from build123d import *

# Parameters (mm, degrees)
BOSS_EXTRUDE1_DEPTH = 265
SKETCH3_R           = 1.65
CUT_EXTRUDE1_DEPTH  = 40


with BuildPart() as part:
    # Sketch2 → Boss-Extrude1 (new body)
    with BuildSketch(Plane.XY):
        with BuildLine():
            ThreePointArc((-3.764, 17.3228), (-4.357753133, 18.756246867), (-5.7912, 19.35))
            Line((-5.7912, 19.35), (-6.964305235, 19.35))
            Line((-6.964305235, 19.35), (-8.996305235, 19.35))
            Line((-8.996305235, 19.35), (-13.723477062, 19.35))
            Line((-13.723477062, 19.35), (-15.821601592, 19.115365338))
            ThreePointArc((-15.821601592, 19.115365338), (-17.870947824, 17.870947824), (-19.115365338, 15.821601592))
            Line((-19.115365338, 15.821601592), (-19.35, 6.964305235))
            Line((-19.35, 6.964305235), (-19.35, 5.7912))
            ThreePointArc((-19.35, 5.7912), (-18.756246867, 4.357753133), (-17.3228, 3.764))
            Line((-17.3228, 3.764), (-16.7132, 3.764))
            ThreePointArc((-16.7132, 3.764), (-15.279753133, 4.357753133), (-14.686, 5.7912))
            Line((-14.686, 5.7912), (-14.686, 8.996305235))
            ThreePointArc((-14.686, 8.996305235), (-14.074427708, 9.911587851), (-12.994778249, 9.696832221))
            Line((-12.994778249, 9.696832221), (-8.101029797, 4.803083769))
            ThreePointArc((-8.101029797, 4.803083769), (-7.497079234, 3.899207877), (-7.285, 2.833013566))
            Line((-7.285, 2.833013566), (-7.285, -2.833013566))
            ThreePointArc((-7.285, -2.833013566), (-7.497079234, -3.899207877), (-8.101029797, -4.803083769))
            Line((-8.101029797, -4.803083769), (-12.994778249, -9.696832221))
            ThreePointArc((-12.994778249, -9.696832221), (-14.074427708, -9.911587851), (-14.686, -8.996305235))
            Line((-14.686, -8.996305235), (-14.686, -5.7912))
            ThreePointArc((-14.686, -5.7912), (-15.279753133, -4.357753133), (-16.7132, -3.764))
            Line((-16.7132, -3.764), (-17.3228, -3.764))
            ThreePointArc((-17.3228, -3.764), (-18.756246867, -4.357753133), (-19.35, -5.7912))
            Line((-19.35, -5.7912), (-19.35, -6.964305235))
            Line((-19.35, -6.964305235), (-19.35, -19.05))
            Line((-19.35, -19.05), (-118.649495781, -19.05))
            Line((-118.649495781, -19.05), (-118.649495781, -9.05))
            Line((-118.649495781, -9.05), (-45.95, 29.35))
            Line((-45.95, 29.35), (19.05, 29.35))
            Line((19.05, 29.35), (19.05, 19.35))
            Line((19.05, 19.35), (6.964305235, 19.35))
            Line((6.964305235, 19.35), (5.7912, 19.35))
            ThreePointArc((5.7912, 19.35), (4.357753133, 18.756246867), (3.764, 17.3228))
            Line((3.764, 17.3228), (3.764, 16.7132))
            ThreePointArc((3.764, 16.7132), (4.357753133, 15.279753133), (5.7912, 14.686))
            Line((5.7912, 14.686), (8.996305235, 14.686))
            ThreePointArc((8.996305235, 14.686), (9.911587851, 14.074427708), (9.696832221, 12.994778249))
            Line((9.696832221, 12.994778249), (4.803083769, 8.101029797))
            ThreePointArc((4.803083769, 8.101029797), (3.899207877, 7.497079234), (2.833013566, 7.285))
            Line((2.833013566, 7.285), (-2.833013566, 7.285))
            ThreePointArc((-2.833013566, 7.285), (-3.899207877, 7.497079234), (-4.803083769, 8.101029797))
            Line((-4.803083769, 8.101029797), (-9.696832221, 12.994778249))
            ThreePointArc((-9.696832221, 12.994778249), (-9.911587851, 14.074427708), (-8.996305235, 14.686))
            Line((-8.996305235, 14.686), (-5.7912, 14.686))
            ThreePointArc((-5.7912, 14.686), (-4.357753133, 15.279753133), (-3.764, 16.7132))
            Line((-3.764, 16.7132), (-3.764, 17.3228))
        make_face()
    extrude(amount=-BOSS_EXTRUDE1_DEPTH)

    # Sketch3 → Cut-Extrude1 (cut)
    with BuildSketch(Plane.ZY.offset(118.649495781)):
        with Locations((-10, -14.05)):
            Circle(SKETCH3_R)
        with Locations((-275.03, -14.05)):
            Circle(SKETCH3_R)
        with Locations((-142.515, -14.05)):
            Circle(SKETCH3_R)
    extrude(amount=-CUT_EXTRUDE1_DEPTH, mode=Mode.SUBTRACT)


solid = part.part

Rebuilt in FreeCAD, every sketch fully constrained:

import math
import FreeCAD as App
import Part
import Sketcher

V = App.Vector
Q = App.Units.Quantity

doc = App.newDocument("Part")
body = doc.addObject("PartDesign::Body", "Body")

# Sketch on XY plane
sketch1 = body.newObject("Sketcher::SketchObject", "Sketch")
sketch1.AttachmentSupport = (doc.getObject("XY_Plane"), [""])
sketch1.MapMode = "FlatFace"
sketch1.addGeometry(Part.ArcOfCircle(Part.Circle(V(-5.8, 17.3, 0), V(0, 0, 1), 2), math.radians(0), math.radians(90)), False)
sketch1.addGeometry(Part.LineSegment(V(-3.8, 17.3, 0), V(-3.8, 16.7, 0)), False)
sketch1.addGeometry(Part.ArcOfCircle(Part.Circle(V(-5.8, 16.7, 0), V(0, 0, 1), 2), math.radians(-90), math.radians(0)), False)
sketch1.addGeometry(Part.LineSegment(V(-5.8, 14.7, 0), V(-9, 14.7, 0)), False)
sketch1.addGeometry(Part.ArcOfCircle(Part.Circle(V(-9, 13.7, 0), V(0, 0, 1), 1), math.radians(90), math.radians(225)), False)
sketch1.addGeometry(Part.LineSegment(V(-9.7, 13, 0), V(-4.8, 8.1, 0)), False)
sketch1.addGeometry(Part.ArcOfCircle(Part.Circle(V(-2.8, 10.1, 0), V(0, 0, 1), 2.8), math.radians(-135), math.radians(-90)), False)
sketch1.addGeometry(Part.LineSegment(V(-2.8, 7.3, 0), V(2.8, 7.3, 0)), False)
sketch1.addGeometry(Part.ArcOfCircle(Part.Circle(V(2.8, 10.1, 0), V(0, 0, 1), 2.8), math.radians(-90), math.radians(-45)), False)
sketch1.addGeometry(Part.LineSegment(V(4.8, 8.1, 0), V(9.7, 13, 0)), False)
sketch1.addGeometry(Part.ArcOfCircle(Part.Circle(V(9, 13.7, 0), V(0, 0, 1), 1), math.radians(-45), math.radians(90)), False)
sketch1.addGeometry(Part.LineSegment(V(9, 14.7, 0), V(5.8, 14.7, 0)), False)
sketch1.addGeometry(Part.ArcOfCircle(Part.Circle(V(5.8, 16.7, 0), V(0, 0, 1), 2), math.radians(180), math.radians(270)), False)
sketch1.addGeometry(Part.LineSegment(V(3.8, 16.7, 0), V(3.8, 17.3, 0)), False)
sketch1.addGeometry(Part.ArcOfCircle(Part.Circle(V(5.8, 17.3, 0), V(0, 0, 1), 2), math.radians(90), math.radians(180)), False)
sketch1.addGeometry(Part.LineSegment(V(5.8, 19.4, 0), V(19.1, 19.4, 0)), False)
sketch1.addGeometry(Part.LineSegment(V(19.1, 19.4, 0), V(19.1, 29.4, 0)), False)
sketch1.addGeometry(Part.LineSegment(V(19.1, 29.4, 0), V(-46, 29.4, 0)), False)
sketch1.addGeometry(Part.LineSegment(V(-46, 29.4, 0), V(-118.6, -9.1, 0)), False)
sketch1.addGeometry(Part.LineSegment(V(-118.6, -9.1, 0), V(-118.6, -19.1, 0)), False)
sketch1.addGeometry(Part.LineSegment(V(-118.6, -19.1, 0), V(-19.4, -19.1, 0)), False)
sketch1.addGeometry(Part.LineSegment(V(-19.4, -19.1, 0), V(-19.4, -5.8, 0)), False)
sketch1.addGeometry(Part.ArcOfCircle(Part.Circle(V(-17.3, -5.8, 0), V(0, 0, 1), 2), math.radians(90), math.radians(180)), False)
sketch1.addGeometry(Part.LineSegment(V(-17.3, -3.8, 0), V(-16.7, -3.8, 0)), False)
sketch1.addGeometry(Part.ArcOfCircle(Part.Circle(V(-16.7, -5.8, 0), V(0, 0, 1), 2), math.radians(0), math.radians(90)), False)
sketch1.addGeometry(Part.LineSegment(V(-14.7, -5.8, 0), V(-14.7, -9, 0)), False)
sketch1.addGeometry(Part.ArcOfCircle(Part.Circle(V(-13.7, -9, 0), V(0, 0, 1), 1), math.radians(180), math.radians(315)), False)
sketch1.addGeometry(Part.LineSegment(V(-13, -9.7, 0), V(-8.1, -4.8, 0)), False)
sketch1.addGeometry(Part.ArcOfCircle(Part.Circle(V(-10.1, -2.8, 0), V(0, 0, 1), 2.8), math.radians(-45), math.radians(0)), False)
sketch1.addGeometry(Part.LineSegment(V(-7.3, -2.8, 0), V(-7.3, 2.8, 0)), False)
sketch1.addGeometry(Part.ArcOfCircle(Part.Circle(V(-10.1, 2.8, 0), V(0, 0, 1), 2.8), math.radians(0), math.radians(45)), False)
sketch1.addGeometry(Part.LineSegment(V(-8.1, 4.8, 0), V(-13, 9.7, 0)), False)
sketch1.addGeometry(Part.ArcOfCircle(Part.Circle(V(-13.7, 9, 0), V(0, 0, 1), 1), math.radians(45), math.radians(180)), False)
sketch1.addGeometry(Part.LineSegment(V(-14.7, 9, 0), V(-14.7, 5.8, 0)), False)
sketch1.addGeometry(Part.ArcOfCircle(Part.Circle(V(-16.7, 5.8, 0), V(0, 0, 1), 2), math.radians(-90), math.radians(0)), False)
sketch1.addGeometry(Part.LineSegment(V(-16.7, 3.8, 0), V(-17.3, 3.8, 0)), False)
sketch1.addGeometry(Part.ArcOfCircle(Part.Circle(V(-17.3, 5.8, 0), V(0, 0, 1), 2), math.radians(180), math.radians(270)), False)
sketch1.addGeometry(Part.LineSegment(V(-19.4, 5.8, 0), V(-19.4, 7, 0)), False)
sketch1.addGeometry(Part.LineSegment(V(-19.4, 7, 0), V(-19.1, 15.8, 0)), False)
sketch1.addGeometry(Part.ArcOfCircle(Part.Circle(V(-14.3, 14.3, 0), V(0, 0, 1), 5), math.radians(108), math.radians(162)), False)
sketch1.addGeometry(Part.LineSegment(V(-15.8, 19.1, 0), V(-13.7, 19.4, 0)), False)
sketch1.addGeometry(Part.LineSegment(V(-13.7, 19.4, 0), V(-5.8, 19.4, 0)), False)
sketch1.addConstraint(Sketcher.Constraint("Tangent", 0, 1, 1, 1))
sketch1.addConstraint(Sketcher.Constraint("Tangent", 1, 2, 2, 2))
sketch1.addConstraint(Sketcher.Constraint("Tangent", 2, 1, 3, 1))
sketch1.addConstraint(Sketcher.Constraint("Tangent", 3, 2, 4, 1))
sketch1.addConstraint(Sketcher.Constraint("Tangent", 4, 2, 5, 1))
sketch1.addConstraint(Sketcher.Constraint("Tangent", 5, 2, 6, 1))
sketch1.addConstraint(Sketcher.Constraint("Tangent", 6, 2, 7, 1))
sketch1.addConstraint(Sketcher.Constraint("Tangent", 7, 2, 8, 1))
sketch1.addConstraint(Sketcher.Constraint("Tangent", 8, 2, 9, 1))
sketch1.addConstraint(Sketcher.Constraint("Tangent", 9, 2, 10, 1))
sketch1.addConstraint(Sketcher.Constraint("Tangent", 10, 2, 11, 1))
sketch1.addConstraint(Sketcher.Constraint("Tangent", 11, 2, 12, 2))
sketch1.addConstraint(Sketcher.Constraint("Tangent", 12, 1, 13, 1))
sketch1.addConstraint(Sketcher.Constraint("Tangent", 13, 2, 14, 2))
sketch1.addConstraint(Sketcher.Constraint("Tangent", 14, 1, 15, 1))
sketch1.addConstraint(Sketcher.Constraint("Coincident", 15, 2, 16, 1))
sketch1.addConstraint(Sketcher.Constraint("Coincident", 16, 2, 17, 1))
sketch1.addConstraint(Sketcher.Constraint("Coincident", 17, 2, 18, 1))
sketch1.addConstraint(Sketcher.Constraint("Coincident", 18, 2, 19, 1))
sketch1.addConstraint(Sketcher.Constraint("Coincident", 19, 2, 20, 1))
sketch1.addConstraint(Sketcher.Constraint("Coincident", 20, 2, 21, 1))
sketch1.addConstraint(Sketcher.Constraint("Tangent", 21, 2, 22, 2))
sketch1.addConstraint(Sketcher.Constraint("Tangent", 22, 1, 23, 1))
sketch1.addConstraint(Sketcher.Constraint("Tangent", 23, 2, 24, 2))
sketch1.addConstraint(Sketcher.Constraint("Tangent", 24, 1, 25, 1))
sketch1.addConstraint(Sketcher.Constraint("Tangent", 25, 2, 26, 1))
sketch1.addConstraint(Sketcher.Constraint("Tangent", 26, 2, 27, 1))
sketch1.addConstraint(Sketcher.Constraint("Tangent", 27, 2, 28, 1))
sketch1.addConstraint(Sketcher.Constraint("Tangent", 28, 2, 29, 1))
sketch1.addConstraint(Sketcher.Constraint("Tangent", 29, 2, 30, 1))
sketch1.addConstraint(Sketcher.Constraint("Tangent", 30, 2, 31, 1))
sketch1.addConstraint(Sketcher.Constraint("Tangent", 31, 2, 32, 1))
sketch1.addConstraint(Sketcher.Constraint("Tangent", 32, 2, 33, 1))
sketch1.addConstraint(Sketcher.Constraint("Tangent", 33, 2, 34, 2))
sketch1.addConstraint(Sketcher.Constraint("Tangent", 34, 1, 35, 1))
sketch1.addConstraint(Sketcher.Constraint("Tangent", 35, 2, 36, 2))
sketch1.addConstraint(Sketcher.Constraint("Tangent", 36, 1, 37, 1))
sketch1.addConstraint(Sketcher.Constraint("Coincident", 37, 2, 38, 1))
sketch1.addConstraint(Sketcher.Constraint("Coincident", 38, 2, 39, 2))
sketch1.addConstraint(Sketcher.Constraint("Coincident", 39, 1, 40, 1))
sketch1.addConstraint(Sketcher.Constraint("Coincident", 40, 2, 41, 1))
sketch1.addConstraint(Sketcher.Constraint("Tangent", 41, 2, 0, 2))
sketch1.addConstraint(Sketcher.Constraint("Vertical", 1))
sketch1.addConstraint(Sketcher.Constraint("Horizontal", 3))
sketch1.addConstraint(Sketcher.Constraint("Horizontal", 7))
sketch1.addConstraint(Sketcher.Constraint("Horizontal", 11))
sketch1.addConstraint(Sketcher.Constraint("Vertical", 13))
sketch1.addConstraint(Sketcher.Constraint("Horizontal", 15))
sketch1.addConstraint(Sketcher.Constraint("Vertical", 16))
sketch1.addConstraint(Sketcher.Constraint("Horizontal", 17))
sketch1.addConstraint(Sketcher.Constraint("Vertical", 19))
sketch1.addConstraint(Sketcher.Constraint("Horizontal", 20))
sketch1.addConstraint(Sketcher.Constraint("Vertical", 21))
sketch1.addConstraint(Sketcher.Constraint("Horizontal", 23))
sketch1.addConstraint(Sketcher.Constraint("Vertical", 25))
sketch1.addConstraint(Sketcher.Constraint("Vertical", 29))
sketch1.addConstraint(Sketcher.Constraint("Vertical", 33))
sketch1.addConstraint(Sketcher.Constraint("Horizontal", 35))
sketch1.addConstraint(Sketcher.Constraint("Vertical", 37))
sketch1.addConstraint(Sketcher.Constraint("Horizontal", 41))
sketch1.addConstraint(Sketcher.Constraint("Equal", 0, 2))
sketch1.addConstraint(Sketcher.Constraint("Equal", 6, 8))
sketch1.addConstraint(Sketcher.Constraint("Equal", 4, 10))
sketch1.addConstraint(Sketcher.Constraint("Equal", 2, 12))
sketch1.addConstraint(Sketcher.Constraint("Equal", 12, 14))
sketch1.addConstraint(Sketcher.Constraint("Equal", 14, 22))
sketch1.addConstraint(Sketcher.Constraint("Equal", 22, 24))
sketch1.addConstraint(Sketcher.Constraint("Equal", 10, 26))
sketch1.addConstraint(Sketcher.Constraint("Equal", 8, 28))
sketch1.addConstraint(Sketcher.Constraint("Equal", 28, 30))
sketch1.addConstraint(Sketcher.Constraint("Equal", 26, 32))
sketch1.addConstraint(Sketcher.Constraint("Equal", 24, 34))
sketch1.addConstraint(Sketcher.Constraint("Equal", 34, 36))
sketch1.addConstraint(Sketcher.Constraint("Symmetric", 4, 3, 10, 3, -2))
sketch1.addConstraint(Sketcher.Constraint("Symmetric", 0, 3, 14, 3, -2))
sketch1.addConstraint(Sketcher.Constraint("Symmetric", 26, 3, 32, 3, -1))
sketch1.addConstraint(Sketcher.Constraint("Symmetric", 22, 3, 36, 3, -1))
sketch1.addConstraint(Sketcher.Constraint("Perpendicular", 5, 9))
sketch1.addConstraint(Sketcher.Constraint("Parallel", 9, 27))
sketch1.addConstraint(Sketcher.Constraint("Perpendicular", 27, 31))
sketch1.addConstraint(Sketcher.Constraint("Horizontal", 5, 2, 8, 2))
sketch1.addConstraint(Sketcher.Constraint("Equal", 35, 1))
sketch1.addConstraint(Sketcher.Constraint("Equal", 16, 19))
sketch1.addConstraint(Sketcher.Constraint("Equal", 15, 21))
sketch1.addConstraint(Sketcher.Constraint("Equal", 11, 25))
sketch1.addConstraint(Sketcher.Constraint("Equal", 7, 29))
sketch1.addConstraint(Sketcher.Constraint("Equal", 9, 27))
sketch1.addConstraint(Sketcher.Constraint("DistanceX", 17, 2, 17, 1, Q("65 mm")))
sketch1.addConstraint(Sketcher.Constraint("DistanceY", 16, 1, 16, 2, Q("10 mm")))
sketch1.addConstraint(Sketcher.Constraint("Radius", 0, Q("2.0272 mm")))
sketch1.addConstraint(Sketcher.Constraint("Radius", 6, Q("2.7861 mm")))
sketch1.addConstraint(Sketcher.Constraint("Radius", 39, Q("5.0498 mm")))
sketch1.addConstraint(Sketcher.Constraint("DistanceY", 18, 2, 17, 2, Q("38.4 mm")))
sketch1.addConstraint(Sketcher.Constraint("DistanceY", -1, 1, 14, 1, Q("19.35 mm")))
sketch1.addConstraint(Sketcher.Constraint("DistanceX", 20, 2, -1, 1, Q("19.35 mm")))
sketch1.addConstraint(Sketcher.Constraint("DistanceX", 15, 1, 15, 2, Q("13.2588 mm")))
sketch1.addConstraint(Sketcher.Constraint("DistanceX", 23, 1, 23, 2, Q("0.6096 mm")))
sketch1.addConstraint(Sketcher.Constraint("DistanceY", -1, 1, 6, 2, Q("7.285 mm")))
sketch1.addConstraint(Sketcher.Constraint("Radius", 4, Q("0.990695 mm")))
sketch1.addConstraint(Sketcher.Constraint("DistanceX", 26, 3, 4, 3, Q("4.699 mm")))
sketch1.addConstraint(Sketcher.Constraint("DistanceX", 39, 3, 2, 3, Q("8.509 mm")))
sketch1.addConstraint(Sketcher.Constraint("DistanceY", 39, 3, 2, 3, Q("2.413 mm")))
sketch1.addConstraint(Sketcher.Constraint("DistanceY", -1, 1, 38, 2, Q("15.821602 mm")))
sketch1.addConstraint(Sketcher.Constraint("DistanceX", 39, 1, -1, 1, Q("15.821602 mm")))
sketch1.addConstraint(Sketcher.Constraint("Distance", 18, Q("82.217861 mm")))
sketch1.addConstraint(Sketcher.Constraint("DistanceX", 41, 1, 41, 2, Q("7.932277 mm")))
sketch1.addConstraint(Sketcher.Constraint("DistanceY", 37, 1, 37, 2, Q("1.173105 mm")))
pad1 = body.newObject("PartDesign::Pad", "Pad")
pad1.Profile = sketch1
pad1.Length = 265
pad1.Reversed = True

# Sketch on YZ plane
sketch2 = body.newObject("Sketcher::SketchObject", "Sketch001")
sketch2.AttachmentSupport = (doc.getObject("YZ_Plane"), [""])
sketch2.MapMode = "FlatFace"
sketch2.AttachmentOffset = App.Placement(V(0, 0, -118.649496), App.Rotation())
sketch2.addGeometry(Part.Circle(V(-14.1, -10, 0), V(0, 0, 1), 1.6), False)
sketch2.addGeometry(Part.Circle(V(-14.1, -275, 0), V(0, 0, 1), 1.6), False)
sketch2.addGeometry(Part.Circle(V(-14.1, -142.5, 0), V(0, 0, 1), 1.6), False)
sketch2.addConstraint(Sketcher.Constraint("Equal", 0, 1))
sketch2.addConstraint(Sketcher.Constraint("Equal", 1, 2))
sketch2.addConstraint(Sketcher.Constraint("Vertical", 0, 3, 1, 3))
sketch2.addConstraint(Sketcher.Constraint("Vertical", 1, 3, 2, 3))
sketch2.addConstraint(Sketcher.Constraint("Diameter", 0, Q("3.3 mm")))
sketch2.addConstraint(Sketcher.Constraint("DistanceY", 0, 3, -1, 1, Q("10 mm")))
sketch2.addConstraint(Sketcher.Constraint("DistanceX", 0, 3, -1, 1, Q("14.05 mm")))
sketch2.addConstraint(Sketcher.Constraint("DistanceY", 1, 3, -1, 1, Q("275.03 mm")))
sketch2.addConstraint(Sketcher.Constraint("DistanceY", 2, 3, -1, 1, Q("142.515 mm")))
pocket1 = body.newObject("PartDesign::Pocket", "Pocket")
pocket1.Profile = sketch2
pocket1.Length = 40
pocket1.Reversed = True

doc.recompute()
